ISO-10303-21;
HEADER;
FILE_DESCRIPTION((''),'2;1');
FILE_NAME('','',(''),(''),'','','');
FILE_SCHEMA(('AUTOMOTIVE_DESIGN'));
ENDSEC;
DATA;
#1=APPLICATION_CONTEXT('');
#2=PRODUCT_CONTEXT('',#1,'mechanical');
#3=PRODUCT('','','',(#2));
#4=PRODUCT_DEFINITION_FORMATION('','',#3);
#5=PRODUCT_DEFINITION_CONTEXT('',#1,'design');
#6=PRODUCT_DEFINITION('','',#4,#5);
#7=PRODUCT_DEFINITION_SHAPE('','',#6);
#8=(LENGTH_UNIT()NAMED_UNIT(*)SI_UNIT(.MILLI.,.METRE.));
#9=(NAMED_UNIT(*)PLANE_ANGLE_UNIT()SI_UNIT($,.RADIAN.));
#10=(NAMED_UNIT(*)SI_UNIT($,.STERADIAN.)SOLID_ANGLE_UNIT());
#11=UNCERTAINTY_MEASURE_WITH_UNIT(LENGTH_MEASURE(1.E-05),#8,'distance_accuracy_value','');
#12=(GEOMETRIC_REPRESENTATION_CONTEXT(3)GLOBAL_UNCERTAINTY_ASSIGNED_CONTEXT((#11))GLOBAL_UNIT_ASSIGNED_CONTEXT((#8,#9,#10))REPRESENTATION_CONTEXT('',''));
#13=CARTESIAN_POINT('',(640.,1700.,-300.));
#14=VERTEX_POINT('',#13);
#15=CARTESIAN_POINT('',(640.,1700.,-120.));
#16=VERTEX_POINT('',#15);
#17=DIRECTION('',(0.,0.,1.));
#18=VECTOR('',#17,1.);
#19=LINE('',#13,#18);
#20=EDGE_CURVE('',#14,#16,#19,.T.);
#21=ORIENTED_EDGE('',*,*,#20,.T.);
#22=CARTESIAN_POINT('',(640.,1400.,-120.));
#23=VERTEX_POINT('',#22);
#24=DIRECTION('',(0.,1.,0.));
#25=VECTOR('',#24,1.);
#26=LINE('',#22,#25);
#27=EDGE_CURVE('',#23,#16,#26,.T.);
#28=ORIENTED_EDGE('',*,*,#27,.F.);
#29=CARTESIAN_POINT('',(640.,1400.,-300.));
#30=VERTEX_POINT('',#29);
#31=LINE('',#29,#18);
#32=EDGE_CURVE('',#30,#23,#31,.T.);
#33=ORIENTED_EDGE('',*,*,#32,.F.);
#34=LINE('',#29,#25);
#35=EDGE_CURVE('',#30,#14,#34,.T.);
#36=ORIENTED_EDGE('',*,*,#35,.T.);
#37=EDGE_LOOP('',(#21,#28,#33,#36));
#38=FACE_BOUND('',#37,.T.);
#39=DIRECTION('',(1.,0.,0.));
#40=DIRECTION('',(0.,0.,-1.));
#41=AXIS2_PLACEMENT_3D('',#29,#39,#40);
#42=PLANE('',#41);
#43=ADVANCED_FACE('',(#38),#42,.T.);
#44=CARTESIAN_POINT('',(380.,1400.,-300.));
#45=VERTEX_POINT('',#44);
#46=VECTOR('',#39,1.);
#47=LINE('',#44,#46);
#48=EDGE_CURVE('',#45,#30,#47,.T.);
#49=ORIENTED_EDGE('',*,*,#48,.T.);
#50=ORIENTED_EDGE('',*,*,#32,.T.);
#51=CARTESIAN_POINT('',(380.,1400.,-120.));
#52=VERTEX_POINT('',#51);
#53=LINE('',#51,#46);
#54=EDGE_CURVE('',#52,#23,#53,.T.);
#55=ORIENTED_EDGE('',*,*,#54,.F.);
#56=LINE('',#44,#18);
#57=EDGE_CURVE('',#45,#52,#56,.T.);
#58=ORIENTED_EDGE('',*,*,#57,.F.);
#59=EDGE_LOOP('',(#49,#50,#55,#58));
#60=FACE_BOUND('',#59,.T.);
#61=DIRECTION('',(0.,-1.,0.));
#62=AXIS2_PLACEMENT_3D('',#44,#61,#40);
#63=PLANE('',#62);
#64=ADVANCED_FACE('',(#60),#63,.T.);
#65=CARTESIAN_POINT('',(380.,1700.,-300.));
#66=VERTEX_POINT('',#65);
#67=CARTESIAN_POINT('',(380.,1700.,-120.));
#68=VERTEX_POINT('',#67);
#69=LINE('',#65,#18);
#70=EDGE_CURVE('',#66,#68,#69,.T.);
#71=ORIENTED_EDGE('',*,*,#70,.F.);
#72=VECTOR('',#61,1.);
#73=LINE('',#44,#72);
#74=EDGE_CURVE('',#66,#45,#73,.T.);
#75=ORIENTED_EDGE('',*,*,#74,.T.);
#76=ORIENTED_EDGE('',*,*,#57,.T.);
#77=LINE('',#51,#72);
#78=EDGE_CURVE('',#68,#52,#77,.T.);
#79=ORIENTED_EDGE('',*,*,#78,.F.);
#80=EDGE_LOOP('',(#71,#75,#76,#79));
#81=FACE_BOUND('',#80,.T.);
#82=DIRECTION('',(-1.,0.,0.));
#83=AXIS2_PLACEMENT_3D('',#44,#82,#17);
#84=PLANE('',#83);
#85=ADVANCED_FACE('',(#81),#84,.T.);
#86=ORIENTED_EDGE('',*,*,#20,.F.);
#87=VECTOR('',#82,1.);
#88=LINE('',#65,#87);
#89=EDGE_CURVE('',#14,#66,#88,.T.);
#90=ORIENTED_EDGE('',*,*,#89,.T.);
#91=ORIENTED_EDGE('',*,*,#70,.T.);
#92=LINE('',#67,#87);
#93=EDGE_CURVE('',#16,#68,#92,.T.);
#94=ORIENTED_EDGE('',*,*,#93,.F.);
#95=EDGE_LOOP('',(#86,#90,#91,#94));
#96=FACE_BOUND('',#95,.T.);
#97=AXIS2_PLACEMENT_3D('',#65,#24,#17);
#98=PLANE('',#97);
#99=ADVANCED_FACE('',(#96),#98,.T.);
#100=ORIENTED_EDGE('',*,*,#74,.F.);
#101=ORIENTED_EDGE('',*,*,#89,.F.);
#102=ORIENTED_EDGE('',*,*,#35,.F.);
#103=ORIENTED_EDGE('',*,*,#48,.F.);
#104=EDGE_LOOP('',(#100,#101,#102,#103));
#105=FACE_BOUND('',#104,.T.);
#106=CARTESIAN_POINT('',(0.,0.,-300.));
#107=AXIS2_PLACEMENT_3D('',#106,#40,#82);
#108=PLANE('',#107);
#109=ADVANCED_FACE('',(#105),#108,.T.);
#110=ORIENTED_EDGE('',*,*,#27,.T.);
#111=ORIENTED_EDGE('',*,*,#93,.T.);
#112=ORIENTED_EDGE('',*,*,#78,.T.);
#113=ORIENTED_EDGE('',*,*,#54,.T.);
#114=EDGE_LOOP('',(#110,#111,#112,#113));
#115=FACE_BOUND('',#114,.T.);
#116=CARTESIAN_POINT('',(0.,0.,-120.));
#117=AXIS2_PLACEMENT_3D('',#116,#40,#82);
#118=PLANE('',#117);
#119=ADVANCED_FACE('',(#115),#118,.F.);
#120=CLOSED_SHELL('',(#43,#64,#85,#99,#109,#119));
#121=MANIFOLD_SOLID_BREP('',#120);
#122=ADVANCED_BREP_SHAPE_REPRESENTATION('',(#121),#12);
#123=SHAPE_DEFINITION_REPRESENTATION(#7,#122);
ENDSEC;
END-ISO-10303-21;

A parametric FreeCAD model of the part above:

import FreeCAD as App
import Part
import Sketcher


def add_polygon(sketch, points):
    """Adds a closed chain of lines whose ends are joined by coincident constraints."""
    first, n = sketch.GeometryCount, len(points)
    for a, b in zip(points, points[1:] + points[:1]):
        sketch.addGeometry(Part.LineSegment(App.Vector(*a, 0), App.Vector(*b, 0)), False)
    for i in range(n):
        sketch.addConstraint(Sketcher.Constraint("Coincident", first + i, 2, first + (i + 1) % n, 1))

doc = App.newDocument("Part")
body = doc.addObject("PartDesign::Body", "Body")

# Sketch on XY plane
sketch1 = body.newObject("Sketcher::SketchObject", "Sketch")
sketch1.AttachmentSupport = (doc.getObject("XY_Plane"), [""])
sketch1.MapMode = "FlatFace"
sketch1.AttachmentOffset = App.Placement(App.Vector(0, 0, -120), App.Rotation())
add_polygon(sketch1, [(380, 1700), (380, 1400), (640, 1400), (640, 1700)])  # lines 0-3
sketch1.addConstraint([
    Sketcher.Constraint("Vertical", 0),
    Sketcher.Constraint("Horizontal", 1),
    Sketcher.Constraint("Vertical", 2),
    Sketcher.Constraint("Horizontal", 3),
    Sketcher.Constraint("DistanceX", 1, 1, 1, 2, 260.0),
    Sketcher.Constraint("DistanceY", 0, 2, 0, 1, 300.0),
    Sketcher.Constraint("DistanceX", -1, 1, 0, 2, 380.0),
    Sketcher.Constraint("DistanceY", -1, 1, 0, 2, 1400.0),
])
pad1 = body.newObject("PartDesign::Pad", "Pad")
pad1.Profile = sketch1
pad1.Length = 180
pad1.Reversed = True

doc.recompute()
